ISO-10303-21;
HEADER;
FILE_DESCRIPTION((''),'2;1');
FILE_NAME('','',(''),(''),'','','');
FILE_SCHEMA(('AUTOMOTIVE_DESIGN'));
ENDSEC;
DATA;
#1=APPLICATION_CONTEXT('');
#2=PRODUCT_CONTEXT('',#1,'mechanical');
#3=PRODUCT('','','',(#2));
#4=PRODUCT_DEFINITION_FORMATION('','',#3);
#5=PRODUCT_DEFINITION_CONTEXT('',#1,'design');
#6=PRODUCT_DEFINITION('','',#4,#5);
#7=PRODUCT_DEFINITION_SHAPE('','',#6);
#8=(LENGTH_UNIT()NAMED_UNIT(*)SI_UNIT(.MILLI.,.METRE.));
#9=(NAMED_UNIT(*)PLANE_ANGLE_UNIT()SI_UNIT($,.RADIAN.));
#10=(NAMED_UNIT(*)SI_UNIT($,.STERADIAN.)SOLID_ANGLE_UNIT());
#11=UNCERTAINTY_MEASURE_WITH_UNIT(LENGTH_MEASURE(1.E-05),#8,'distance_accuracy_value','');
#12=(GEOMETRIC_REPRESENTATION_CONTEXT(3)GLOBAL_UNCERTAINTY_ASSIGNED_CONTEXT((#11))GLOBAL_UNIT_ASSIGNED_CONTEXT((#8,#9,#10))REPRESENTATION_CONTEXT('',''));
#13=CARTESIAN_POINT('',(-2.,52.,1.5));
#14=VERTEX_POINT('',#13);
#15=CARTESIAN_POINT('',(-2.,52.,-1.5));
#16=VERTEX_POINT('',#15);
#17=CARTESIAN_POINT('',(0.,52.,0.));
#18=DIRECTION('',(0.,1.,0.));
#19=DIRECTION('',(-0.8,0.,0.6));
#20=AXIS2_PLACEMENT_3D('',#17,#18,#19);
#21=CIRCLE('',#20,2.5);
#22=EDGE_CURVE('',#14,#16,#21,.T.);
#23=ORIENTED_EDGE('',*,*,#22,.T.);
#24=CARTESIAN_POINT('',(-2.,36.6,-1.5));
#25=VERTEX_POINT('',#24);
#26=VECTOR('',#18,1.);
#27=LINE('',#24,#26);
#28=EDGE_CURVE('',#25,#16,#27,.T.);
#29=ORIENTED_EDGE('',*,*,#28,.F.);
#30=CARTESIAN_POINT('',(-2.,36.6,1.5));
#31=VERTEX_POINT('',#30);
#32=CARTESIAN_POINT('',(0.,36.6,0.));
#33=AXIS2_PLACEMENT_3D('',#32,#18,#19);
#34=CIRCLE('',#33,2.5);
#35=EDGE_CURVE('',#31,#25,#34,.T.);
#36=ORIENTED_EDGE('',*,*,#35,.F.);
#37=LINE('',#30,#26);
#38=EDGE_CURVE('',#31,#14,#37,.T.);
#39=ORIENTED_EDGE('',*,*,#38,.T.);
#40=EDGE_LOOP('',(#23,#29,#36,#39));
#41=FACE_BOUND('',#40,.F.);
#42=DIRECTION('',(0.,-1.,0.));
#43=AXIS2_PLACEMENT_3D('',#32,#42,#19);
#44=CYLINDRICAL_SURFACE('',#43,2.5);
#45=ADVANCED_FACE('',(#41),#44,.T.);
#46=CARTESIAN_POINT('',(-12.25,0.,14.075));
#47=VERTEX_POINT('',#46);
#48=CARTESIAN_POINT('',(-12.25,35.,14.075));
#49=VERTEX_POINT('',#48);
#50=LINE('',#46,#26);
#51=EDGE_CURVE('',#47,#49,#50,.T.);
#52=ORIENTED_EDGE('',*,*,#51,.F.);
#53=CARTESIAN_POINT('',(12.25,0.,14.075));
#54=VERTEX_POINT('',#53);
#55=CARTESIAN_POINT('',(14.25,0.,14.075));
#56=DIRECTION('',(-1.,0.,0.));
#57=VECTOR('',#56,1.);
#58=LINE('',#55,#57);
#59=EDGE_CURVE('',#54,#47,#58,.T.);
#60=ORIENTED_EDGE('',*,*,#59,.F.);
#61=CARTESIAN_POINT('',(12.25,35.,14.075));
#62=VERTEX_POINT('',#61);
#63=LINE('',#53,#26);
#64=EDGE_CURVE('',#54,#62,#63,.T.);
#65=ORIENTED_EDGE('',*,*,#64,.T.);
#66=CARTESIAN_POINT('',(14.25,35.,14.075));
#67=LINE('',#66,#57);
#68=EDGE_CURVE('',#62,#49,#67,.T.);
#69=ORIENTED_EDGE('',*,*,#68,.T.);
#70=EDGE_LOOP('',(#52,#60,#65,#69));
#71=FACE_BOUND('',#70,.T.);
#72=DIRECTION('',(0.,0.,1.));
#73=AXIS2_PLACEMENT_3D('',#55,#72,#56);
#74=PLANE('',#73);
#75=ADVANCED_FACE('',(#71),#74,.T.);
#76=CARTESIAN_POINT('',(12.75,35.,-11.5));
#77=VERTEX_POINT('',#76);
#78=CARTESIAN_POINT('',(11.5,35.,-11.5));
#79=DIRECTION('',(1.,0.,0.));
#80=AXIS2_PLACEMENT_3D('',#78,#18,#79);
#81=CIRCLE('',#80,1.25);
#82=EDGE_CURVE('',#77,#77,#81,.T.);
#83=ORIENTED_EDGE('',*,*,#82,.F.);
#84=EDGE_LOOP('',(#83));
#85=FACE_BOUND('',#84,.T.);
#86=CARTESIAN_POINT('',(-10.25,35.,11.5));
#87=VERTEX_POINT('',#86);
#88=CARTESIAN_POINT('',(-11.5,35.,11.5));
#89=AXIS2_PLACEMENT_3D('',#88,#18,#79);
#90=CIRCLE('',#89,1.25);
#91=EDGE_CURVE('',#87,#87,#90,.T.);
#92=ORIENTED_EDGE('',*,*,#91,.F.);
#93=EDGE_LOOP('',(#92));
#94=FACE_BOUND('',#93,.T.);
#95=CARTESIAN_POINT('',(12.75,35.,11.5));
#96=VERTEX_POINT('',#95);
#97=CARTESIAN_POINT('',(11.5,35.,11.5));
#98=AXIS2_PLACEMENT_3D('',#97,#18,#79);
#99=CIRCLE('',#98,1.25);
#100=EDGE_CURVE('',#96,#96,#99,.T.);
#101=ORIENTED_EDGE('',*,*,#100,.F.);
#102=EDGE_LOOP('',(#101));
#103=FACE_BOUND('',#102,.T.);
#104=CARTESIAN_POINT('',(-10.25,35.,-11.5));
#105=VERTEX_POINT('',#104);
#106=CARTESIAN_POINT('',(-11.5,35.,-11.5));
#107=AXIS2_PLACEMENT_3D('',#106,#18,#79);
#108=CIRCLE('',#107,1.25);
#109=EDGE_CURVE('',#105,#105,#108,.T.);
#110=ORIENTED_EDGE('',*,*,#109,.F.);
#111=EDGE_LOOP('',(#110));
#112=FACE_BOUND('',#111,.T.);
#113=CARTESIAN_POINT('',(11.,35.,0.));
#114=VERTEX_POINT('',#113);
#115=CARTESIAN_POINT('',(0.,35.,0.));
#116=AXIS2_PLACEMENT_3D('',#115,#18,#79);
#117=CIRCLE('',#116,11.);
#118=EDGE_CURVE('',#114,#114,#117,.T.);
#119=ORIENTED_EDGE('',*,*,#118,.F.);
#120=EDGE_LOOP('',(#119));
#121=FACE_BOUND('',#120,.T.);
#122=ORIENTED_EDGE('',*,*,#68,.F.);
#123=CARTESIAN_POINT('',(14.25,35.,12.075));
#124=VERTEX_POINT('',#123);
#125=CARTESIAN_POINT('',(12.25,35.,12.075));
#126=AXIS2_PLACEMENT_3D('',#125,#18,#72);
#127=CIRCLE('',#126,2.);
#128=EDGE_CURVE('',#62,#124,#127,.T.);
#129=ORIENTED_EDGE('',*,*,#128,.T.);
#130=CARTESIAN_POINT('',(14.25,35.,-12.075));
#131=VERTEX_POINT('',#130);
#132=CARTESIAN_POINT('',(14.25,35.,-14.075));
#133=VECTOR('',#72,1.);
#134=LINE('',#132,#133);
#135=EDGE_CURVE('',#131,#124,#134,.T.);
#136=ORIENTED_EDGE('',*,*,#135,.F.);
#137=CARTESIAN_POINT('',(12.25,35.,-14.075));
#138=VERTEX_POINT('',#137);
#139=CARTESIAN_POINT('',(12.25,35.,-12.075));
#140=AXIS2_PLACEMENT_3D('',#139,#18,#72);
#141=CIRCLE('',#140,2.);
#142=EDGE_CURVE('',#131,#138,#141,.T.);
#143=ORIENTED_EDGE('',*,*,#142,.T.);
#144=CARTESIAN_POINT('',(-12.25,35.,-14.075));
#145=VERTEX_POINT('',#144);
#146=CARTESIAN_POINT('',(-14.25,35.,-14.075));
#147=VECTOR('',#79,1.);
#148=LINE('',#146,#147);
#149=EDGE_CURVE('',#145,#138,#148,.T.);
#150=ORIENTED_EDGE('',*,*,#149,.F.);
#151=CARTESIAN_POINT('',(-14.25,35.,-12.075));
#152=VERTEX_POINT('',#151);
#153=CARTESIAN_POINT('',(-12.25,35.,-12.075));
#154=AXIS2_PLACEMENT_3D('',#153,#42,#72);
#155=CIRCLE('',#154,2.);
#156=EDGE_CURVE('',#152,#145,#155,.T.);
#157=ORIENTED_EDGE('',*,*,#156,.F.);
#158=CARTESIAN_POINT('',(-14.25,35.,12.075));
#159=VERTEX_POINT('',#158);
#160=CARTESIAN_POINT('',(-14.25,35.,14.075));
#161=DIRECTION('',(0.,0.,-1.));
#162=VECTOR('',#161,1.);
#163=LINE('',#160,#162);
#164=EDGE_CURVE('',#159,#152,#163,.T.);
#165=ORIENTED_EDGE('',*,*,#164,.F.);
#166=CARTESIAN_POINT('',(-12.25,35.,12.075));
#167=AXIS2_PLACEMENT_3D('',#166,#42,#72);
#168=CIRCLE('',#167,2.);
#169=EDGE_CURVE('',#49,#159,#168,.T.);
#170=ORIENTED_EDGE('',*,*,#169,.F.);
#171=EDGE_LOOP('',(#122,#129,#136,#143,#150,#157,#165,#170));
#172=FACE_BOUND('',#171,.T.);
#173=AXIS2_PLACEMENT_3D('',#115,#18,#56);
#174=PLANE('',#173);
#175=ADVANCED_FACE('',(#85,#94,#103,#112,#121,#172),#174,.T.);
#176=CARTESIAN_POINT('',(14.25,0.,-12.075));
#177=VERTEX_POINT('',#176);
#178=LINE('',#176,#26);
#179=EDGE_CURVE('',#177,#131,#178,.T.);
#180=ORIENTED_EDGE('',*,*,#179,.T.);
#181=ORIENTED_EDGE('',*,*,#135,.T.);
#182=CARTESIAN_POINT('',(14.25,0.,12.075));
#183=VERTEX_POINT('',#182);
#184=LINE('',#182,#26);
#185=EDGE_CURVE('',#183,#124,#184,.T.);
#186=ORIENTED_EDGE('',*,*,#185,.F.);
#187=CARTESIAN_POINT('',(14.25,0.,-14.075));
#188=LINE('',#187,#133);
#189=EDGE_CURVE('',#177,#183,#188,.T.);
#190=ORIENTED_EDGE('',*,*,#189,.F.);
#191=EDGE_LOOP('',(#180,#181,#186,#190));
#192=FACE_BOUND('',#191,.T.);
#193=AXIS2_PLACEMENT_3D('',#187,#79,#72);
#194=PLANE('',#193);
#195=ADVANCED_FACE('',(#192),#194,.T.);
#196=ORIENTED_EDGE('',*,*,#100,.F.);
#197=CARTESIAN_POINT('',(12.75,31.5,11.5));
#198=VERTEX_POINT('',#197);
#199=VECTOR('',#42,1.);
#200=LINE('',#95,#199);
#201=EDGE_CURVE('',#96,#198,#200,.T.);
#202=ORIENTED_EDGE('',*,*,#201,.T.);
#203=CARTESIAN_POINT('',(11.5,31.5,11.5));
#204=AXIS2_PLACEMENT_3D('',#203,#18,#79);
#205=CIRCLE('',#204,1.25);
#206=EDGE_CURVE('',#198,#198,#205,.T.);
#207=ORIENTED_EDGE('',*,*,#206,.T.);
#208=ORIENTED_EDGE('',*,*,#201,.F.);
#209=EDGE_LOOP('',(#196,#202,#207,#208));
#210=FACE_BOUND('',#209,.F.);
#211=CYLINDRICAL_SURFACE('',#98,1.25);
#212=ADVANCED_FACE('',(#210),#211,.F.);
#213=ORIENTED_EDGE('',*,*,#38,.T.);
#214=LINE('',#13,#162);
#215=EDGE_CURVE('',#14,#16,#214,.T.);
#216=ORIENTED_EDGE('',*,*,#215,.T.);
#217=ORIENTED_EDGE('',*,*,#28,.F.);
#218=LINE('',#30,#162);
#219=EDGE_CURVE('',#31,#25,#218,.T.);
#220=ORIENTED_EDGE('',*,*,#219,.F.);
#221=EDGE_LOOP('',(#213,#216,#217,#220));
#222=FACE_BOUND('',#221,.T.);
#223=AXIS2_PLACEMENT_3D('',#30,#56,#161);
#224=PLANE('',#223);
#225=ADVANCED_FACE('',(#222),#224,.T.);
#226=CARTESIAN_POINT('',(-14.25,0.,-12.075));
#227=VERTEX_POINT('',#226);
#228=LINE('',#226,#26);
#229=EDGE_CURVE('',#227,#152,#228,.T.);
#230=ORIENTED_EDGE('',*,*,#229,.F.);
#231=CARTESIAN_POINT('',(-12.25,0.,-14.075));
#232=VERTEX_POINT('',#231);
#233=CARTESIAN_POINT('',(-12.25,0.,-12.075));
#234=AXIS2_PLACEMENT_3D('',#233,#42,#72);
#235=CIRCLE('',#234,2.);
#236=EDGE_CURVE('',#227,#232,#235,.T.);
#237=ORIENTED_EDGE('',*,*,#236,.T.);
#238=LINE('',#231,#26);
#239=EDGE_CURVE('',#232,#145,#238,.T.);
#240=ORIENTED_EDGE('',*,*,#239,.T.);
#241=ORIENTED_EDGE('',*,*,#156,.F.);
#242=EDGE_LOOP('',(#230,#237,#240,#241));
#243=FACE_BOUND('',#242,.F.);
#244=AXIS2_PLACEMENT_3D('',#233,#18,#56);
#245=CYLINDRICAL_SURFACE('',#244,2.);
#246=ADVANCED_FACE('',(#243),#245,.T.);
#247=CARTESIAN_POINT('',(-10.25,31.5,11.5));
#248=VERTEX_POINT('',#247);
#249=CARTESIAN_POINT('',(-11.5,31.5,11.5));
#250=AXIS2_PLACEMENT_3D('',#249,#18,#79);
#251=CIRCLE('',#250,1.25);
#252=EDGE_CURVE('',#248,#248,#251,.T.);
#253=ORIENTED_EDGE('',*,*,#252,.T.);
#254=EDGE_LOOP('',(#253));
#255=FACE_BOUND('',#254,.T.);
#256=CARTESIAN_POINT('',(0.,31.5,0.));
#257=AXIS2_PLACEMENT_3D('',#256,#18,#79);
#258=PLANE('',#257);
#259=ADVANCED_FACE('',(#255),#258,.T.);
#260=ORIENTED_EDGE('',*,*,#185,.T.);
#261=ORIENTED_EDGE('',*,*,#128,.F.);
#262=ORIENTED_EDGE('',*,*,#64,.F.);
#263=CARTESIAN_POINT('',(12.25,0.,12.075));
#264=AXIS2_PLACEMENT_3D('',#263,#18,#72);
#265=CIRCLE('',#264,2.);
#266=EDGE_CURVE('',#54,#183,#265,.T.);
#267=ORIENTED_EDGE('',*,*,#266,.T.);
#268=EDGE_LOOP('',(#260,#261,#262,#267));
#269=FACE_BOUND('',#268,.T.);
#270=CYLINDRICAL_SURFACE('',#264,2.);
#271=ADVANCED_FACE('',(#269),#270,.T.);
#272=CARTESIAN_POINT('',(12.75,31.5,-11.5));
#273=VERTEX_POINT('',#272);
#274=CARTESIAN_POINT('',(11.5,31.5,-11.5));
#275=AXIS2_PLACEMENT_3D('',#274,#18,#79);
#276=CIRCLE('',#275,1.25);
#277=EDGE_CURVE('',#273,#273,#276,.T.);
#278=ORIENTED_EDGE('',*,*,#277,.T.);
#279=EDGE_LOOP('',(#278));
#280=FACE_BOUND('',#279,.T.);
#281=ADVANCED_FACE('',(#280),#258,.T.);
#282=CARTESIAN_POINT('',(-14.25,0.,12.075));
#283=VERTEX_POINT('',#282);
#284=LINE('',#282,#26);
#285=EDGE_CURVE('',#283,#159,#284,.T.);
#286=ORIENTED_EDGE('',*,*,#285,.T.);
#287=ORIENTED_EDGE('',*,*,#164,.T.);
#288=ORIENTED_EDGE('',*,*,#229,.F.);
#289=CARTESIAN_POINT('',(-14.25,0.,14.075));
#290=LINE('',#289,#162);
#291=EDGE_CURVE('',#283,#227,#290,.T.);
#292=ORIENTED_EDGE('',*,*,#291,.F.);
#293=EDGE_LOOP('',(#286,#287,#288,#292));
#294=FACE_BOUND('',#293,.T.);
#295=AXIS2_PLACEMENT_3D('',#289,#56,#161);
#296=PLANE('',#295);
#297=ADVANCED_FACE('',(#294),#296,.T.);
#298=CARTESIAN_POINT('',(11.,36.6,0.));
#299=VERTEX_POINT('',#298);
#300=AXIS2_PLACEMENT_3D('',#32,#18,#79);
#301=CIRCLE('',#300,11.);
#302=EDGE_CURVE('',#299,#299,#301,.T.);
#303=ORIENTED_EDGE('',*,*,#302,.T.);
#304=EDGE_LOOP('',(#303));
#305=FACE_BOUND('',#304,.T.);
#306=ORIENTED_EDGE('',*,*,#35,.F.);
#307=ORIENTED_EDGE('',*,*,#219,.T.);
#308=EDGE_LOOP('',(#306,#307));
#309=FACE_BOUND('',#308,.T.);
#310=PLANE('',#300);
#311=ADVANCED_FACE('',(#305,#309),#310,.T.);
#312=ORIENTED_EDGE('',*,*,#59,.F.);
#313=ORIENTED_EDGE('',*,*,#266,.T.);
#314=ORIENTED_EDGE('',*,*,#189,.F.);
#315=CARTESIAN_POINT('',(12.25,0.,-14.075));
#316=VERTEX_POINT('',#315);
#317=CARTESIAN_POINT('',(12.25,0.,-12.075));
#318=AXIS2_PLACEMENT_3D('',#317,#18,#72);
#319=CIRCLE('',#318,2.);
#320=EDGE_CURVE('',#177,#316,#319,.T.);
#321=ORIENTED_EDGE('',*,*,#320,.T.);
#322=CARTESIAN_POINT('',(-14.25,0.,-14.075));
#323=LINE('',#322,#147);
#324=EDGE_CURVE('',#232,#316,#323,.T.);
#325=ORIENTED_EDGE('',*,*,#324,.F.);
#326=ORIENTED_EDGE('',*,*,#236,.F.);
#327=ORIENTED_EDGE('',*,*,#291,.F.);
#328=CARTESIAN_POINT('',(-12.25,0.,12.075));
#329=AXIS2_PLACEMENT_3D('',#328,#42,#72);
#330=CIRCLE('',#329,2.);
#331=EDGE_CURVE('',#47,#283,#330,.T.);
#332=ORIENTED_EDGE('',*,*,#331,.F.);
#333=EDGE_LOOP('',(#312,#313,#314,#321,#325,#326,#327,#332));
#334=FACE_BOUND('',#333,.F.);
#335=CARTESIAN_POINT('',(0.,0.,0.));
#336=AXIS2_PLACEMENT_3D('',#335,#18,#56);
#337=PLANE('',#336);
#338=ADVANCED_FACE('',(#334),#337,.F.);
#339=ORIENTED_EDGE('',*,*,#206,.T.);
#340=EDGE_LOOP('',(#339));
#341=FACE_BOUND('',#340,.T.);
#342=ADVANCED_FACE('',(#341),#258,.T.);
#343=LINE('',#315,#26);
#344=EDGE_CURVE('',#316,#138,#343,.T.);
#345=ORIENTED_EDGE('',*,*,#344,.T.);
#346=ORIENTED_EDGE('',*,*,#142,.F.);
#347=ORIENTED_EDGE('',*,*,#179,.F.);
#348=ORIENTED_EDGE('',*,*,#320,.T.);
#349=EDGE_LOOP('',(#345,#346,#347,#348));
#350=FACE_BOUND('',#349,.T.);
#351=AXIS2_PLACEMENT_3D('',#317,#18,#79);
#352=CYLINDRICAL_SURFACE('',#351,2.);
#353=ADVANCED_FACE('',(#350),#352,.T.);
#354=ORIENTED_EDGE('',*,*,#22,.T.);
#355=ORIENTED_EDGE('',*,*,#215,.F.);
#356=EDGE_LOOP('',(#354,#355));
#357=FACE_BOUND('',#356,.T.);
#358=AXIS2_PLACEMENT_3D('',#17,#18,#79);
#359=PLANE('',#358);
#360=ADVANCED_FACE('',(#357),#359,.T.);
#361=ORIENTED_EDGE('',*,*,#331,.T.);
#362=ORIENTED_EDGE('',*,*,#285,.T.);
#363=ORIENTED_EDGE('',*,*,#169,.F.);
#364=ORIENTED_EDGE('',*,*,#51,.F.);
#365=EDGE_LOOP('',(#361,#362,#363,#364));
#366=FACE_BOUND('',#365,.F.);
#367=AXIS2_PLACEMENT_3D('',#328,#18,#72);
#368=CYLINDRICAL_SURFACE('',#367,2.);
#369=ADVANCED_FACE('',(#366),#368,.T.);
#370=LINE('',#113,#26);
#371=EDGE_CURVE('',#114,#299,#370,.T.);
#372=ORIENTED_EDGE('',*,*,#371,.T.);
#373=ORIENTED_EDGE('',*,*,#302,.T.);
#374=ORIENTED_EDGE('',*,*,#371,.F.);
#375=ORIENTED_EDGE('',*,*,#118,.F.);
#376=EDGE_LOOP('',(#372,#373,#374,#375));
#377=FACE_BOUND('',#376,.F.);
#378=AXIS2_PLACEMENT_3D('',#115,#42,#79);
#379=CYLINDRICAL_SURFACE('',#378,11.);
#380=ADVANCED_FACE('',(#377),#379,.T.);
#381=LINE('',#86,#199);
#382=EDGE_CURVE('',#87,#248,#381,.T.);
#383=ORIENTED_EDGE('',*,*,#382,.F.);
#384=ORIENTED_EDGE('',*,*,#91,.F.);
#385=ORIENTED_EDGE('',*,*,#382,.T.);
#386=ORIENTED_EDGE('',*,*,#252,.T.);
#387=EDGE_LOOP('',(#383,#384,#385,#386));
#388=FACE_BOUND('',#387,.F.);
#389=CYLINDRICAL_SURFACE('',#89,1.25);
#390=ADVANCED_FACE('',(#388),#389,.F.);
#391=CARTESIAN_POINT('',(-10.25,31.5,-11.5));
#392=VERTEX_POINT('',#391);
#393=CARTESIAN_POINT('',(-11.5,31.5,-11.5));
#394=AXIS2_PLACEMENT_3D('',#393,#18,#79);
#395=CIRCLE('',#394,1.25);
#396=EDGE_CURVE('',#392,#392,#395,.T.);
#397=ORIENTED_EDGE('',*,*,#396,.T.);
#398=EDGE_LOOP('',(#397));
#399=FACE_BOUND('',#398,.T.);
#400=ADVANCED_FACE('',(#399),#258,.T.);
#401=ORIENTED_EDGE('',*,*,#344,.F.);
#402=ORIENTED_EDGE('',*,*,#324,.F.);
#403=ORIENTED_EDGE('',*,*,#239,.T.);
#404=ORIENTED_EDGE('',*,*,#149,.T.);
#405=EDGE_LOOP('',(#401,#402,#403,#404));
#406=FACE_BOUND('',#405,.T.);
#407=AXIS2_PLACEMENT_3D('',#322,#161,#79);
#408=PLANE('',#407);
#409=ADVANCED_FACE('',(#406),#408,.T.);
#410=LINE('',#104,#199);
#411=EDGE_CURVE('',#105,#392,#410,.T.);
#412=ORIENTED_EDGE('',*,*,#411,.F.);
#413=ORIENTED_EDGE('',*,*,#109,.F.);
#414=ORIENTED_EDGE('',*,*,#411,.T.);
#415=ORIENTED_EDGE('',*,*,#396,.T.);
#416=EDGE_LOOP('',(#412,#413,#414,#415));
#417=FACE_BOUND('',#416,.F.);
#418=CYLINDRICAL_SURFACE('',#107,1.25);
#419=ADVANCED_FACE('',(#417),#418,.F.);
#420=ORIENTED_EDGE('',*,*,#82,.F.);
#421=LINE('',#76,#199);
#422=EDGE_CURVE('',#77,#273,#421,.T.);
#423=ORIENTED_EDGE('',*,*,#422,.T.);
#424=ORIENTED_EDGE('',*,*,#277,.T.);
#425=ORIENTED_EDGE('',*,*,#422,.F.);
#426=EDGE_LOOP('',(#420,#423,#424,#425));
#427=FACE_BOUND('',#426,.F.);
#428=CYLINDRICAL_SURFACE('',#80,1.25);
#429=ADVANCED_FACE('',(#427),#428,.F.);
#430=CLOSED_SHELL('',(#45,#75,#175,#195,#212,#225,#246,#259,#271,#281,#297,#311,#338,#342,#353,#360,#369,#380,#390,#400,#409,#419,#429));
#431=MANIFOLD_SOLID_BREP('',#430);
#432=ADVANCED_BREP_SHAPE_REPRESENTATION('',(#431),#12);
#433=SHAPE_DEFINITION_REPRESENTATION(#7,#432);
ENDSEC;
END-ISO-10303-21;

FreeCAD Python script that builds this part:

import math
import FreeCAD as App
import Part
import Sketcher
Q = App.Units.Quantity


def edges_at(feature, points):
    """Names of the edges that pass closest to the given points."""
    edges = feature.Shape.Edges
    near = lambda p: min(range(len(edges)), key=lambda i: edges[i].distToShape(Part.Vertex(*p))[0])
    return sorted({f"Edge{near(p) + 1}" for p in points})

doc = App.newDocument("Part")
params = doc.addObject("Spreadsheet::Sheet", "Params")
for row, (alias, value) in enumerate([
    ("sketch1_width", "28.5 mm"),
    ("sketch1_height", "28.15 mm"),
    ("pad1_length", "35 mm"),
    ("sketch2_diameter", "22 mm"),
    ("pad2_length", "1.6 mm"),
    ("sketch3_radius", "2.5 mm"),
    ("pad3_length", "15.4 mm"),
    ("sketch4_diameter", "2.5 mm"),
    ("pocket1_length", "3.5 mm"),
    ("fillet_radius", "2 mm"),
], start=1):
    params.set(f"A{row}", alias)
    params.set(f"B{row}", "=" + value)
    params.setAlias(f"B{row}", alias)

body = doc.addObject("PartDesign::Body", "Body")

sketch1 = body.newObject("Sketcher::SketchObject", "Sketch")
sketch1.AttachmentSupport = (doc.getObject("XZ_Plane"), [""])
sketch1.MapMode = "FlatFace"
sketch1.addGeometry([
    Part.LineSegment(App.Vector(-14.25, 14.075, 0), App.Vector(14.25, 14.075, 0)),
    Part.LineSegment(App.Vector(14.25, 14.075, 0), App.Vector(14.25, -14.075, 0)),
    Part.LineSegment(App.Vector(14.25, -14.075, 0), App.Vector(-14.25, -14.075, 0)),
    Part.LineSegment(App.Vector(-14.25, -14.075, 0), App.Vector(-14.25, 14.075, 0)),
], False)
sketch1.addConstraint([
    Sketcher.Constraint("Coincident", 0, 2, 1, 1),
    Sketcher.Constraint("Coincident", 1, 2, 2, 1),
    Sketcher.Constraint("Coincident", 2, 2, 3, 1),
    Sketcher.Constraint("Coincident", 3, 2, 0, 1),
    Sketcher.Constraint("Horizontal", 0),
    Sketcher.Constraint("Vertical", 1),
    Sketcher.Constraint("Horizontal", 2),
    Sketcher.Constraint("Vertical", 3),
    Sketcher.Constraint("Symmetric", 0, 2, 2, 2, -1, 1),
    Sketcher.Constraint("DistanceX", 0, 1, 0, 2, Q("28.5 mm")),
    Sketcher.Constraint("DistanceY", 1, 2, 1, 1, Q("28.15 mm")),
])
sketch1.setExpression("Constraints[9]", "Params.sketch1_width")
sketch1.setExpression("Constraints[10]", "Params.sketch1_height")
pad1 = body.newObject("PartDesign::Pad", "Pad")
pad1.Profile = sketch1
pad1.setExpression("Length", "Params.pad1_length")
pad1.Reversed = True

sketch2 = body.newObject("Sketcher::SketchObject", "Sketch001")
sketch2.AttachmentSupport = (doc.getObject("XZ_Plane"), [""])
sketch2.MapMode = "FlatFace"
sketch2.AttachmentOffset = App.Placement(App.Vector(0, 0, -35), App.Rotation())
sketch2.addGeometry(Part.Circle(App.Vector(0, 0, 0), App.Vector(0, 0, 1), 11), False)
sketch2.addConstraint([
    Sketcher.Constraint("Coincident", 0, 3, -1, 1),
    Sketcher.Constraint("Diameter", 0, Q("22 mm")),
])
sketch2.setExpression("Constraints[1]", "Params.sketch2_diameter")
pad2 = body.newObject("PartDesign::Pad", "Pad001")
pad2.Profile = sketch2
pad2.setExpression("Length", "Params.pad2_length")
pad2.Reversed = True

sketch3 = body.newObject("Sketcher::SketchObject", "Sketch002")
sketch3.AttachmentSupport = (doc.getObject("XZ_Plane"), [""])
sketch3.MapMode = "FlatFace"
sketch3.AttachmentOffset = App.Placement(App.Vector(0, 0, -36.6), App.Rotation())
sketch3.addGeometry([
    Part.LineSegment(App.Vector(-2, -1.5, 0), App.Vector(-2, 1.5, 0)),
    Part.ArcOfCircle(Part.Circle(App.Vector(0, 0, 0), App.Vector(0, 0, 1), 2.5), math.radians(-143.130102), math.radians(143.130102)),
], False)
sketch3.addConstraint([
    Sketcher.Constraint("Coincident", 0, 1, 1, 1),
    Sketcher.Constraint("Coincident", 1, 2, 0, 2),
    Sketcher.Constraint("Vertical", 0),
    Sketcher.Constraint("Coincident", 1, 3, -1, 1),
    Sketcher.Constraint("Radius", 1, Q("2.5 mm")),
    Sketcher.Constraint("DistanceX", 0, 1, -1, 1, Q("2 mm")),
])
sketch3.setExpression("Constraints[4]", "Params.sketch3_radius")
pad3 = body.newObject("PartDesign::Pad", "Pad002")
pad3.Profile = sketch3
pad3.setExpression("Length", "Params.pad3_length")
pad3.Reversed = True

sketch4 = body.newObject("Sketcher::SketchObject", "Sketch003")
sketch4.AttachmentSupport = (doc.getObject("XZ_Plane"), [""])
sketch4.MapMode = "FlatFace"
sketch4.AttachmentOffset = App.Placement(App.Vector(0, 0, -35), App.Rotation())
sketch4.addGeometry([
    Part.Circle(App.Vector(-11.5, -11.5, 0), App.Vector(0, 0, 1), 1.25),
    Part.Circle(App.Vector(-11.5, 11.5, 0), App.Vector(0, 0, 1), 1.25),
    Part.Circle(App.Vector(11.5, 11.5, 0), App.Vector(0, 0, 1), 1.25),
    Part.Circle(App.Vector(11.5, -11.5, 0), App.Vector(0, 0, 1), 1.25),
], False)
sketch4.addConstraint([
    Sketcher.Constraint("Equal", 0, 1),
    Sketcher.Constraint("Equal", 1, 2),
    Sketcher.Constraint("Equal", 2, 3),
    Sketcher.Constraint("Symmetric", 0, 3, 2, 3, -1, 1),
    Sketcher.Constraint("Symmetric", 1, 3, 3, 3, -1, 1),
    Sketcher.Constraint("Symmetric", 1, 3, 2, 3, -2),
    Sketcher.Constraint("Diameter", 0, Q("2.5 mm")),
    Sketcher.Constraint("DistanceY", 0, 3, 1, 3, Q("23 mm")),
    Sketcher.Constraint("DistanceX", 1, 3, 2, 3, Q("23 mm")),
])
sketch4.setExpression("Constraints[6]", "Params.sketch4_diameter")
pocket1 = body.newObject("PartDesign::Pocket", "Pocket")
pocket1.Profile = sketch4
pocket1.setExpression("Length", "Params.pocket1_length")
pocket1.Reversed = True
doc.recompute()

fillet = body.newObject("PartDesign::Fillet", "Fillet")
fillet.Base = (pocket1, edges_at(pocket1, [
    (14.25, 17.5, 14.075),
    (14.25, 17.5, -14.075),
    (-14.25, 17.5, 14.075),
    (-14.25, 17.5, -14.075),
]))
fillet.setExpression("Radius", "Params.fillet_radius")

doc.recompute()
